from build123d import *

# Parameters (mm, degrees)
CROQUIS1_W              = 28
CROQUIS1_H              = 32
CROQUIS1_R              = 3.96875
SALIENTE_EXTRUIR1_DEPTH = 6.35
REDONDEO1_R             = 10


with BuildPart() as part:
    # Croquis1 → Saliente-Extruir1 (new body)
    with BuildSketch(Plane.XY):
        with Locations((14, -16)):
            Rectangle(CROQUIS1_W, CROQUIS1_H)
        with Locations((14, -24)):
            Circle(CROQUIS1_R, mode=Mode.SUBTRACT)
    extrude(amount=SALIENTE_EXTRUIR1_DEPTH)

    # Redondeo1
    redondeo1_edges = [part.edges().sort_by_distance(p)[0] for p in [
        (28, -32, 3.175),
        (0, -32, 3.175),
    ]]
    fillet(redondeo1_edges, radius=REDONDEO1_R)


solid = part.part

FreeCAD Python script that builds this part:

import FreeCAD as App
import Part
import Sketcher
Q = App.Units.Quantity


def edges_at(feature, points):
    """Names of the edges that pass closest to the given points."""
    edges = feature.Shape.Edges
    near = lambda p: min(range(len(edges)), key=lambda i: edges[i].distToShape(Part.Vertex(*p))[0])
    return sorted({f"Edge{near(p) + 1}" for p in points})

doc = App.newDocument("Part")
body = doc.addObject("PartDesign::Body", "Body")

# Sketch on XY plane
sketch1 = body.newObject("Sketcher::SketchObject", "Sketch")
sketch1.AttachmentSupport = (doc.getObject("XY_Plane"), [""])
sketch1.MapMode = "FlatFace"
sketch1.addGeometry([
    Part.LineSegment(App.Vector(0, 0, 0), App.Vector(0, -32, 0)),  # 0
    Part.LineSegment(App.Vector(0, -32, 0), App.Vector(28, -32, 0)),  # 1
    Part.LineSegment(App.Vector(28, -32, 0), App.Vector(28, 0, 0)),  # 2
    Part.LineSegment(App.Vector(28, 0, 0), App.Vector(0, 0, 0)),  # 3
    Part.Circle(App.Vector(14, -24, 0), App.Vector(0, 0, 1), 4),  # 4
], False)
sketch1.addConstraint([
    Sketcher.Constraint("Coincident", 0, 2, 1, 1),
    Sketcher.Constraint("Coincident", 1, 2, 2, 1),
    Sketcher.Constraint("Coincident", 2, 2, 3, 1),
    Sketcher.Constraint("Coincident", 3, 2, 0, 1),
    Sketcher.Constraint("Vertical", 0),
    Sketcher.Constraint("Horizontal", 1),
    Sketcher.Constraint("Vertical", 2),
    Sketcher.Constraint("Horizontal", 3),
    Sketcher.Constraint("Coincident", 3, 2, -1, 1),
    Sketcher.Constraint("DistanceX", 1, 1, 1, 2, Q("28 mm")),
    Sketcher.Constraint("DistanceY", 0, 2, 0, 1, Q("32 mm")),
    Sketcher.Constraint("DistanceX", -1, 1, 4, 3, Q("14 mm")),
    Sketcher.Constraint("DistanceY", 4, 3, -1, 1, Q("24 mm")),
    Sketcher.Constraint("Diameter", 4, Q("7.9375 mm")),
])
pad1 = body.newObject("PartDesign::Pad", "Pad")
pad1.Profile = sketch1
pad1.Length = 6.35
doc.recompute()

fillet = body.newObject("PartDesign::Fillet", "Fillet")
fillet.Base = (pad1, edges_at(pad1, [(28, -32, 3.175), (0, -32, 3.175)]))
fillet.Radius = 10

doc.recompute()
